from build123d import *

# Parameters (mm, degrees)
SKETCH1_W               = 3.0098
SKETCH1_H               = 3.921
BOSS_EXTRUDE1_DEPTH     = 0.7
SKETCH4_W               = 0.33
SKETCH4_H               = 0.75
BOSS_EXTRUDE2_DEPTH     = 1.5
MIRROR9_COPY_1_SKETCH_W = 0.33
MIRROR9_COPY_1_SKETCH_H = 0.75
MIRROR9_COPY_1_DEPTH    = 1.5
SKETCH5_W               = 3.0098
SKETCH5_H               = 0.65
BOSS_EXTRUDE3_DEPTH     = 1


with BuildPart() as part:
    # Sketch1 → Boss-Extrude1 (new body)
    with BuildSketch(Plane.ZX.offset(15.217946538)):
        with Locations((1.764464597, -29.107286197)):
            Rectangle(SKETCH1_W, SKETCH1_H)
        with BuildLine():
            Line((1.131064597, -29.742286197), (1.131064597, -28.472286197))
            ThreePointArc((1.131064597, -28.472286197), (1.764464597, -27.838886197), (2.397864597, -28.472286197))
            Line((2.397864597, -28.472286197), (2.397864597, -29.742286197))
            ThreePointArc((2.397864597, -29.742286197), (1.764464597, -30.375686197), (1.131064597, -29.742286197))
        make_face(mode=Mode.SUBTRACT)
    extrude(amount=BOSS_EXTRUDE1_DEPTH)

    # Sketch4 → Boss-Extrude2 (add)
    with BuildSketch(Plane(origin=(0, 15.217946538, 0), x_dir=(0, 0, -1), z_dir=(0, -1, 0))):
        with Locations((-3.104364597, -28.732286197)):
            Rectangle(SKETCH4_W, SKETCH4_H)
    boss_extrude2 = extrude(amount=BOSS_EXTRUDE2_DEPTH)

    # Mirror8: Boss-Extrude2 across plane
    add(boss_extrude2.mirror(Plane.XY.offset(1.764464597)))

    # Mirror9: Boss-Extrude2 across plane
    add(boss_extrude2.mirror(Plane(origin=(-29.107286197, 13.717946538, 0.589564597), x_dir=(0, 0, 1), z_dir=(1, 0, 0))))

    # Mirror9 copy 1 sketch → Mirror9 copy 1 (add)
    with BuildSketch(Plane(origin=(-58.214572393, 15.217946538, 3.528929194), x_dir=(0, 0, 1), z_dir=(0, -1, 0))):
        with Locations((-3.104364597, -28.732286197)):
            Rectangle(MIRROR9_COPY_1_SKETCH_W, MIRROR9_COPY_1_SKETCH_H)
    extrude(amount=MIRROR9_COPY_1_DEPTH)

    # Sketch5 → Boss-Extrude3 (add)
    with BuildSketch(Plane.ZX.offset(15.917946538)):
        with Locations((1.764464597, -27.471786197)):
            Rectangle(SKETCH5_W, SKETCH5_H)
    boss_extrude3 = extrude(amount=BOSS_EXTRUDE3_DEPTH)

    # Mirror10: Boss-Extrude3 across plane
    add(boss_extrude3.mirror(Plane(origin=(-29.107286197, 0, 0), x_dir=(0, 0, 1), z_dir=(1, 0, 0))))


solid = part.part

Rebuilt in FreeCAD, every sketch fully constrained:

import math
import FreeCAD as App
import Part
import Sketcher


def add_polygon(sketch, points):
    """Adds a closed chain of lines whose ends are joined by coincident constraints."""
    first, n = sketch.GeometryCount, len(points)
    for a, b in zip(points, points[1:] + points[:1]):
        sketch.addGeometry(Part.LineSegment(App.Vector(*a, 0), App.Vector(*b, 0)), False)
    for i in range(n):
        sketch.addConstraint(Sketcher.Constraint("Coincident", first + i, 2, first + (i + 1) % n, 1))

doc = App.newDocument("Part")
body = doc.addObject("PartDesign::Body", "Body")

# Sketch on XZ plane
sketch1 = body.newObject("Sketcher::SketchObject", "Sketch")
sketch1.AttachmentSupport = (doc.getObject("XZ_Plane"), [""])
sketch1.MapMode = "FlatFace"
sketch1.AttachmentOffset = App.Placement(App.Vector(0, 0, -15.217947), App.Rotation())
add_polygon(sketch1, [(-27.1, 0.3), (-31.1, 0.3), (-31.1, 3.3), (-27.1, 3.3)])  # lines 0-3
sketch1.addGeometry(Part.ArcOfCircle(Part.Circle(App.Vector(-29.7, 1.8, 0), App.Vector(0, 0, 1), 0.6), math.radians(90), math.radians(270)), False)  # 4
sketch1.addGeometry(Part.LineSegment(App.Vector(-29.7, 1.1, 0), App.Vector(-28.5, 1.1, 0)), False)  # 5
sketch1.addGeometry(Part.ArcOfCircle(Part.Circle(App.Vector(-28.5, 1.8, 0), App.Vector(0, 0, 1), 0.6), math.radians(-90), math.radians(90)), False)  # 6
sketch1.addGeometry(Part.LineSegment(App.Vector(-28.5, 2.4, 0), App.Vector(-29.7, 2.4, 0)), False)  # 7
sketch1.addConstraint([
    Sketcher.Constraint("Tangent", 4, 2, 5, 1),
    Sketcher.Constraint("Tangent", 5, 2, 6, 1),
    Sketcher.Constraint("Tangent", 6, 2, 7, 1),
    Sketcher.Constraint("Tangent", 7, 2, 4, 1),
    Sketcher.Constraint("Horizontal", 0),
    Sketcher.Constraint("Vertical", 1),
    Sketcher.Constraint("Horizontal", 2),
    Sketcher.Constraint("Vertical", 3),
    Sketcher.Constraint("Horizontal", 5),
    Sketcher.Constraint("Horizontal", 7),
    Sketcher.Constraint("DistanceX", 5, 1, 5, 2, 1.27),
    Sketcher.Constraint("Radius", 4, 0.6334),
    Sketcher.Constraint("DistanceX", 0, 2, 0, 1, 3.921),
    Sketcher.Constraint("DistanceY", 1, 1, 1, 2, 3.0098),
    Sketcher.Constraint("DistanceX", 0, 2, 4, 3, 1.3255),
    Sketcher.Constraint("DistanceY", 0, 2, 4, 3, 1.5049),
    Sketcher.Constraint("DistanceX", 4, 3, -1, 1, 29.742286),
    Sketcher.Constraint("DistanceY", -1, 1, 4, 3, 1.764465),
])
pad1 = body.newObject("PartDesign::Pad", "Pad")
pad1.Profile = sketch1
pad1.Length = 0.7
pad1.Reversed = True

# Sketch on XZ plane
sketch2 = body.newObject("Sketcher::SketchObject", "Sketch001")
sketch2.AttachmentSupport = (doc.getObject("XZ_Plane"), [""])
sketch2.MapMode = "FlatFace"
sketch2.AttachmentOffset = App.Placement(App.Vector(0, 0, -15.217947), App.Rotation())
add_polygon(sketch2, [(-28.36, 3.27), (-29.11, 3.27), (-29.11, 2.94), (-28.36, 2.94)])  # lines 0-3
sketch2.addConstraint([
    Sketcher.Constraint("Horizontal", 0),
    Sketcher.Constraint("Vertical", 1),
    Sketcher.Constraint("Horizontal", 2),
    Sketcher.Constraint("Vertical", 3),
    Sketcher.Constraint("DistanceX", 0, 2, 0, 1, 0.75),
    Sketcher.Constraint("DistanceY", 1, 2, 1, 1, 0.33),
    Sketcher.Constraint("DistanceX", 0, 2, -1, 1, 29.107286),
    Sketcher.Constraint("DistanceY", -1, 1, 0, 2, 3.269365),
])
pad2 = body.newObject("PartDesign::Pad", "Pad001")
pad2.Profile = sketch2
pad2.Length = 1.5
doc.recompute()

datumplane = body.newObject("PartDesign::Plane", "DatumPlane")
datumplane.AttachmentSupport = (doc.getObject("XY_Plane"), [""])
datumplane.MapMode = "FlatFace"
datumplane.AttachmentOffset = App.Placement(App.Vector(0, 0, 1.764465), App.Rotation())
mirrored = body.newObject("PartDesign::Mirrored", "Mirrored")
mirrored.Originals = [pad2]
mirrored.MirrorPlane = (datumplane, [""])
body.Tip = mirrored
doc.recompute()

datumplane2 = body.newObject("PartDesign::Plane", "DatumPlane001")
datumplane2.AttachmentSupport = (doc.getObject("YZ_Plane"), [""])
datumplane2.MapMode = "FlatFace"
datumplane2.AttachmentOffset = App.Placement(App.Vector(0, 0, -29.107286), App.Rotation())
mirrored2 = body.newObject("PartDesign::Mirrored", "Mirrored001")
mirrored2.Originals = [pad2]
mirrored2.MirrorPlane = (datumplane2, [""])
body.Tip = mirrored2

# Sketch on XZ plane
sketch3 = body.newObject("Sketcher::SketchObject", "Sketch002")
sketch3.AttachmentSupport = (doc.getObject("XZ_Plane"), [""])
sketch3.MapMode = "FlatFace"
sketch3.AttachmentOffset = App.Placement(App.Vector(0, 0, -15.217947), App.Rotation())
add_polygon(sketch3, [(-29.86, 0.26), (-29.11, 0.26), (-29.11, 0.59), (-29.86, 0.59)])  # lines 0-3
sketch3.addConstraint([
    Sketcher.Constraint("Horizontal", 0),
    Sketcher.Constraint("Vertical", 1),
    Sketcher.Constraint("Horizontal", 2),
    Sketcher.Constraint("Vertical", 3),
    Sketcher.Constraint("DistanceX", 0, 1, 0, 2, 0.75),
    Sketcher.Constraint("DistanceY", 1, 1, 1, 2, 0.33),
    Sketcher.Constraint("DistanceX", 0, 2, -1, 1, 29.107286),
    Sketcher.Constraint("DistanceY", -1, 1, 0, 2, 0.259565),
])
pad3 = body.newObject("PartDesign::Pad", "Pad002")
pad3.Profile = sketch3
pad3.Length = 1.5

# Sketch on XZ plane
sketch4 = body.newObject("Sketcher::SketchObject", "Sketch003")
sketch4.AttachmentSupport = (doc.getObject("XZ_Plane"), [""])
sketch4.MapMode = "FlatFace"
sketch4.AttachmentOffset = App.Placement(App.Vector(0, 0, -15.917947), App.Rotation())
add_polygon(sketch4, [(-27.1, 0.3), (-27.8, 0.3), (-27.8, 3.3), (-27.1, 3.3)])  # lines 0-3
sketch4.addConstraint([
    Sketcher.Constraint("Horizontal", 0),
    Sketcher.Constraint("Vertical", 1),
    Sketcher.Constraint("Horizontal", 2),
    Sketcher.Constraint("Vertical", 3),
    Sketcher.Constraint("DistanceX", 0, 2, 0, 1, 0.65),
    Sketcher.Constraint("DistanceY", 1, 1, 1, 2, 3.0098),
    Sketcher.Constraint("DistanceX", 0, 2, -1, 1, 27.796786),
    Sketcher.Constraint("DistanceY", -1, 1, 0, 2, 0.259565),
])
pad4 = body.newObject("PartDesign::Pad", "Pad003")
pad4.Profile = sketch4
pad4.Length = 1
pad4.Reversed = True
doc.recompute()

datumplane3 = body.newObject("PartDesign::Plane", "DatumPlane002")
datumplane3.AttachmentSupport = (doc.getObject("YZ_Plane"), [""])
datumplane3.MapMode = "FlatFace"
datumplane3.AttachmentOffset = App.Placement(App.Vector(0, 0, -29.107286), App.Rotation())
mirrored3 = body.newObject("PartDesign::Mirrored", "Mirrored002")
mirrored3.Originals = [pad4]
mirrored3.MirrorPlane = (datumplane3, [""])
body.Tip = mirrored3

doc.recompute()
